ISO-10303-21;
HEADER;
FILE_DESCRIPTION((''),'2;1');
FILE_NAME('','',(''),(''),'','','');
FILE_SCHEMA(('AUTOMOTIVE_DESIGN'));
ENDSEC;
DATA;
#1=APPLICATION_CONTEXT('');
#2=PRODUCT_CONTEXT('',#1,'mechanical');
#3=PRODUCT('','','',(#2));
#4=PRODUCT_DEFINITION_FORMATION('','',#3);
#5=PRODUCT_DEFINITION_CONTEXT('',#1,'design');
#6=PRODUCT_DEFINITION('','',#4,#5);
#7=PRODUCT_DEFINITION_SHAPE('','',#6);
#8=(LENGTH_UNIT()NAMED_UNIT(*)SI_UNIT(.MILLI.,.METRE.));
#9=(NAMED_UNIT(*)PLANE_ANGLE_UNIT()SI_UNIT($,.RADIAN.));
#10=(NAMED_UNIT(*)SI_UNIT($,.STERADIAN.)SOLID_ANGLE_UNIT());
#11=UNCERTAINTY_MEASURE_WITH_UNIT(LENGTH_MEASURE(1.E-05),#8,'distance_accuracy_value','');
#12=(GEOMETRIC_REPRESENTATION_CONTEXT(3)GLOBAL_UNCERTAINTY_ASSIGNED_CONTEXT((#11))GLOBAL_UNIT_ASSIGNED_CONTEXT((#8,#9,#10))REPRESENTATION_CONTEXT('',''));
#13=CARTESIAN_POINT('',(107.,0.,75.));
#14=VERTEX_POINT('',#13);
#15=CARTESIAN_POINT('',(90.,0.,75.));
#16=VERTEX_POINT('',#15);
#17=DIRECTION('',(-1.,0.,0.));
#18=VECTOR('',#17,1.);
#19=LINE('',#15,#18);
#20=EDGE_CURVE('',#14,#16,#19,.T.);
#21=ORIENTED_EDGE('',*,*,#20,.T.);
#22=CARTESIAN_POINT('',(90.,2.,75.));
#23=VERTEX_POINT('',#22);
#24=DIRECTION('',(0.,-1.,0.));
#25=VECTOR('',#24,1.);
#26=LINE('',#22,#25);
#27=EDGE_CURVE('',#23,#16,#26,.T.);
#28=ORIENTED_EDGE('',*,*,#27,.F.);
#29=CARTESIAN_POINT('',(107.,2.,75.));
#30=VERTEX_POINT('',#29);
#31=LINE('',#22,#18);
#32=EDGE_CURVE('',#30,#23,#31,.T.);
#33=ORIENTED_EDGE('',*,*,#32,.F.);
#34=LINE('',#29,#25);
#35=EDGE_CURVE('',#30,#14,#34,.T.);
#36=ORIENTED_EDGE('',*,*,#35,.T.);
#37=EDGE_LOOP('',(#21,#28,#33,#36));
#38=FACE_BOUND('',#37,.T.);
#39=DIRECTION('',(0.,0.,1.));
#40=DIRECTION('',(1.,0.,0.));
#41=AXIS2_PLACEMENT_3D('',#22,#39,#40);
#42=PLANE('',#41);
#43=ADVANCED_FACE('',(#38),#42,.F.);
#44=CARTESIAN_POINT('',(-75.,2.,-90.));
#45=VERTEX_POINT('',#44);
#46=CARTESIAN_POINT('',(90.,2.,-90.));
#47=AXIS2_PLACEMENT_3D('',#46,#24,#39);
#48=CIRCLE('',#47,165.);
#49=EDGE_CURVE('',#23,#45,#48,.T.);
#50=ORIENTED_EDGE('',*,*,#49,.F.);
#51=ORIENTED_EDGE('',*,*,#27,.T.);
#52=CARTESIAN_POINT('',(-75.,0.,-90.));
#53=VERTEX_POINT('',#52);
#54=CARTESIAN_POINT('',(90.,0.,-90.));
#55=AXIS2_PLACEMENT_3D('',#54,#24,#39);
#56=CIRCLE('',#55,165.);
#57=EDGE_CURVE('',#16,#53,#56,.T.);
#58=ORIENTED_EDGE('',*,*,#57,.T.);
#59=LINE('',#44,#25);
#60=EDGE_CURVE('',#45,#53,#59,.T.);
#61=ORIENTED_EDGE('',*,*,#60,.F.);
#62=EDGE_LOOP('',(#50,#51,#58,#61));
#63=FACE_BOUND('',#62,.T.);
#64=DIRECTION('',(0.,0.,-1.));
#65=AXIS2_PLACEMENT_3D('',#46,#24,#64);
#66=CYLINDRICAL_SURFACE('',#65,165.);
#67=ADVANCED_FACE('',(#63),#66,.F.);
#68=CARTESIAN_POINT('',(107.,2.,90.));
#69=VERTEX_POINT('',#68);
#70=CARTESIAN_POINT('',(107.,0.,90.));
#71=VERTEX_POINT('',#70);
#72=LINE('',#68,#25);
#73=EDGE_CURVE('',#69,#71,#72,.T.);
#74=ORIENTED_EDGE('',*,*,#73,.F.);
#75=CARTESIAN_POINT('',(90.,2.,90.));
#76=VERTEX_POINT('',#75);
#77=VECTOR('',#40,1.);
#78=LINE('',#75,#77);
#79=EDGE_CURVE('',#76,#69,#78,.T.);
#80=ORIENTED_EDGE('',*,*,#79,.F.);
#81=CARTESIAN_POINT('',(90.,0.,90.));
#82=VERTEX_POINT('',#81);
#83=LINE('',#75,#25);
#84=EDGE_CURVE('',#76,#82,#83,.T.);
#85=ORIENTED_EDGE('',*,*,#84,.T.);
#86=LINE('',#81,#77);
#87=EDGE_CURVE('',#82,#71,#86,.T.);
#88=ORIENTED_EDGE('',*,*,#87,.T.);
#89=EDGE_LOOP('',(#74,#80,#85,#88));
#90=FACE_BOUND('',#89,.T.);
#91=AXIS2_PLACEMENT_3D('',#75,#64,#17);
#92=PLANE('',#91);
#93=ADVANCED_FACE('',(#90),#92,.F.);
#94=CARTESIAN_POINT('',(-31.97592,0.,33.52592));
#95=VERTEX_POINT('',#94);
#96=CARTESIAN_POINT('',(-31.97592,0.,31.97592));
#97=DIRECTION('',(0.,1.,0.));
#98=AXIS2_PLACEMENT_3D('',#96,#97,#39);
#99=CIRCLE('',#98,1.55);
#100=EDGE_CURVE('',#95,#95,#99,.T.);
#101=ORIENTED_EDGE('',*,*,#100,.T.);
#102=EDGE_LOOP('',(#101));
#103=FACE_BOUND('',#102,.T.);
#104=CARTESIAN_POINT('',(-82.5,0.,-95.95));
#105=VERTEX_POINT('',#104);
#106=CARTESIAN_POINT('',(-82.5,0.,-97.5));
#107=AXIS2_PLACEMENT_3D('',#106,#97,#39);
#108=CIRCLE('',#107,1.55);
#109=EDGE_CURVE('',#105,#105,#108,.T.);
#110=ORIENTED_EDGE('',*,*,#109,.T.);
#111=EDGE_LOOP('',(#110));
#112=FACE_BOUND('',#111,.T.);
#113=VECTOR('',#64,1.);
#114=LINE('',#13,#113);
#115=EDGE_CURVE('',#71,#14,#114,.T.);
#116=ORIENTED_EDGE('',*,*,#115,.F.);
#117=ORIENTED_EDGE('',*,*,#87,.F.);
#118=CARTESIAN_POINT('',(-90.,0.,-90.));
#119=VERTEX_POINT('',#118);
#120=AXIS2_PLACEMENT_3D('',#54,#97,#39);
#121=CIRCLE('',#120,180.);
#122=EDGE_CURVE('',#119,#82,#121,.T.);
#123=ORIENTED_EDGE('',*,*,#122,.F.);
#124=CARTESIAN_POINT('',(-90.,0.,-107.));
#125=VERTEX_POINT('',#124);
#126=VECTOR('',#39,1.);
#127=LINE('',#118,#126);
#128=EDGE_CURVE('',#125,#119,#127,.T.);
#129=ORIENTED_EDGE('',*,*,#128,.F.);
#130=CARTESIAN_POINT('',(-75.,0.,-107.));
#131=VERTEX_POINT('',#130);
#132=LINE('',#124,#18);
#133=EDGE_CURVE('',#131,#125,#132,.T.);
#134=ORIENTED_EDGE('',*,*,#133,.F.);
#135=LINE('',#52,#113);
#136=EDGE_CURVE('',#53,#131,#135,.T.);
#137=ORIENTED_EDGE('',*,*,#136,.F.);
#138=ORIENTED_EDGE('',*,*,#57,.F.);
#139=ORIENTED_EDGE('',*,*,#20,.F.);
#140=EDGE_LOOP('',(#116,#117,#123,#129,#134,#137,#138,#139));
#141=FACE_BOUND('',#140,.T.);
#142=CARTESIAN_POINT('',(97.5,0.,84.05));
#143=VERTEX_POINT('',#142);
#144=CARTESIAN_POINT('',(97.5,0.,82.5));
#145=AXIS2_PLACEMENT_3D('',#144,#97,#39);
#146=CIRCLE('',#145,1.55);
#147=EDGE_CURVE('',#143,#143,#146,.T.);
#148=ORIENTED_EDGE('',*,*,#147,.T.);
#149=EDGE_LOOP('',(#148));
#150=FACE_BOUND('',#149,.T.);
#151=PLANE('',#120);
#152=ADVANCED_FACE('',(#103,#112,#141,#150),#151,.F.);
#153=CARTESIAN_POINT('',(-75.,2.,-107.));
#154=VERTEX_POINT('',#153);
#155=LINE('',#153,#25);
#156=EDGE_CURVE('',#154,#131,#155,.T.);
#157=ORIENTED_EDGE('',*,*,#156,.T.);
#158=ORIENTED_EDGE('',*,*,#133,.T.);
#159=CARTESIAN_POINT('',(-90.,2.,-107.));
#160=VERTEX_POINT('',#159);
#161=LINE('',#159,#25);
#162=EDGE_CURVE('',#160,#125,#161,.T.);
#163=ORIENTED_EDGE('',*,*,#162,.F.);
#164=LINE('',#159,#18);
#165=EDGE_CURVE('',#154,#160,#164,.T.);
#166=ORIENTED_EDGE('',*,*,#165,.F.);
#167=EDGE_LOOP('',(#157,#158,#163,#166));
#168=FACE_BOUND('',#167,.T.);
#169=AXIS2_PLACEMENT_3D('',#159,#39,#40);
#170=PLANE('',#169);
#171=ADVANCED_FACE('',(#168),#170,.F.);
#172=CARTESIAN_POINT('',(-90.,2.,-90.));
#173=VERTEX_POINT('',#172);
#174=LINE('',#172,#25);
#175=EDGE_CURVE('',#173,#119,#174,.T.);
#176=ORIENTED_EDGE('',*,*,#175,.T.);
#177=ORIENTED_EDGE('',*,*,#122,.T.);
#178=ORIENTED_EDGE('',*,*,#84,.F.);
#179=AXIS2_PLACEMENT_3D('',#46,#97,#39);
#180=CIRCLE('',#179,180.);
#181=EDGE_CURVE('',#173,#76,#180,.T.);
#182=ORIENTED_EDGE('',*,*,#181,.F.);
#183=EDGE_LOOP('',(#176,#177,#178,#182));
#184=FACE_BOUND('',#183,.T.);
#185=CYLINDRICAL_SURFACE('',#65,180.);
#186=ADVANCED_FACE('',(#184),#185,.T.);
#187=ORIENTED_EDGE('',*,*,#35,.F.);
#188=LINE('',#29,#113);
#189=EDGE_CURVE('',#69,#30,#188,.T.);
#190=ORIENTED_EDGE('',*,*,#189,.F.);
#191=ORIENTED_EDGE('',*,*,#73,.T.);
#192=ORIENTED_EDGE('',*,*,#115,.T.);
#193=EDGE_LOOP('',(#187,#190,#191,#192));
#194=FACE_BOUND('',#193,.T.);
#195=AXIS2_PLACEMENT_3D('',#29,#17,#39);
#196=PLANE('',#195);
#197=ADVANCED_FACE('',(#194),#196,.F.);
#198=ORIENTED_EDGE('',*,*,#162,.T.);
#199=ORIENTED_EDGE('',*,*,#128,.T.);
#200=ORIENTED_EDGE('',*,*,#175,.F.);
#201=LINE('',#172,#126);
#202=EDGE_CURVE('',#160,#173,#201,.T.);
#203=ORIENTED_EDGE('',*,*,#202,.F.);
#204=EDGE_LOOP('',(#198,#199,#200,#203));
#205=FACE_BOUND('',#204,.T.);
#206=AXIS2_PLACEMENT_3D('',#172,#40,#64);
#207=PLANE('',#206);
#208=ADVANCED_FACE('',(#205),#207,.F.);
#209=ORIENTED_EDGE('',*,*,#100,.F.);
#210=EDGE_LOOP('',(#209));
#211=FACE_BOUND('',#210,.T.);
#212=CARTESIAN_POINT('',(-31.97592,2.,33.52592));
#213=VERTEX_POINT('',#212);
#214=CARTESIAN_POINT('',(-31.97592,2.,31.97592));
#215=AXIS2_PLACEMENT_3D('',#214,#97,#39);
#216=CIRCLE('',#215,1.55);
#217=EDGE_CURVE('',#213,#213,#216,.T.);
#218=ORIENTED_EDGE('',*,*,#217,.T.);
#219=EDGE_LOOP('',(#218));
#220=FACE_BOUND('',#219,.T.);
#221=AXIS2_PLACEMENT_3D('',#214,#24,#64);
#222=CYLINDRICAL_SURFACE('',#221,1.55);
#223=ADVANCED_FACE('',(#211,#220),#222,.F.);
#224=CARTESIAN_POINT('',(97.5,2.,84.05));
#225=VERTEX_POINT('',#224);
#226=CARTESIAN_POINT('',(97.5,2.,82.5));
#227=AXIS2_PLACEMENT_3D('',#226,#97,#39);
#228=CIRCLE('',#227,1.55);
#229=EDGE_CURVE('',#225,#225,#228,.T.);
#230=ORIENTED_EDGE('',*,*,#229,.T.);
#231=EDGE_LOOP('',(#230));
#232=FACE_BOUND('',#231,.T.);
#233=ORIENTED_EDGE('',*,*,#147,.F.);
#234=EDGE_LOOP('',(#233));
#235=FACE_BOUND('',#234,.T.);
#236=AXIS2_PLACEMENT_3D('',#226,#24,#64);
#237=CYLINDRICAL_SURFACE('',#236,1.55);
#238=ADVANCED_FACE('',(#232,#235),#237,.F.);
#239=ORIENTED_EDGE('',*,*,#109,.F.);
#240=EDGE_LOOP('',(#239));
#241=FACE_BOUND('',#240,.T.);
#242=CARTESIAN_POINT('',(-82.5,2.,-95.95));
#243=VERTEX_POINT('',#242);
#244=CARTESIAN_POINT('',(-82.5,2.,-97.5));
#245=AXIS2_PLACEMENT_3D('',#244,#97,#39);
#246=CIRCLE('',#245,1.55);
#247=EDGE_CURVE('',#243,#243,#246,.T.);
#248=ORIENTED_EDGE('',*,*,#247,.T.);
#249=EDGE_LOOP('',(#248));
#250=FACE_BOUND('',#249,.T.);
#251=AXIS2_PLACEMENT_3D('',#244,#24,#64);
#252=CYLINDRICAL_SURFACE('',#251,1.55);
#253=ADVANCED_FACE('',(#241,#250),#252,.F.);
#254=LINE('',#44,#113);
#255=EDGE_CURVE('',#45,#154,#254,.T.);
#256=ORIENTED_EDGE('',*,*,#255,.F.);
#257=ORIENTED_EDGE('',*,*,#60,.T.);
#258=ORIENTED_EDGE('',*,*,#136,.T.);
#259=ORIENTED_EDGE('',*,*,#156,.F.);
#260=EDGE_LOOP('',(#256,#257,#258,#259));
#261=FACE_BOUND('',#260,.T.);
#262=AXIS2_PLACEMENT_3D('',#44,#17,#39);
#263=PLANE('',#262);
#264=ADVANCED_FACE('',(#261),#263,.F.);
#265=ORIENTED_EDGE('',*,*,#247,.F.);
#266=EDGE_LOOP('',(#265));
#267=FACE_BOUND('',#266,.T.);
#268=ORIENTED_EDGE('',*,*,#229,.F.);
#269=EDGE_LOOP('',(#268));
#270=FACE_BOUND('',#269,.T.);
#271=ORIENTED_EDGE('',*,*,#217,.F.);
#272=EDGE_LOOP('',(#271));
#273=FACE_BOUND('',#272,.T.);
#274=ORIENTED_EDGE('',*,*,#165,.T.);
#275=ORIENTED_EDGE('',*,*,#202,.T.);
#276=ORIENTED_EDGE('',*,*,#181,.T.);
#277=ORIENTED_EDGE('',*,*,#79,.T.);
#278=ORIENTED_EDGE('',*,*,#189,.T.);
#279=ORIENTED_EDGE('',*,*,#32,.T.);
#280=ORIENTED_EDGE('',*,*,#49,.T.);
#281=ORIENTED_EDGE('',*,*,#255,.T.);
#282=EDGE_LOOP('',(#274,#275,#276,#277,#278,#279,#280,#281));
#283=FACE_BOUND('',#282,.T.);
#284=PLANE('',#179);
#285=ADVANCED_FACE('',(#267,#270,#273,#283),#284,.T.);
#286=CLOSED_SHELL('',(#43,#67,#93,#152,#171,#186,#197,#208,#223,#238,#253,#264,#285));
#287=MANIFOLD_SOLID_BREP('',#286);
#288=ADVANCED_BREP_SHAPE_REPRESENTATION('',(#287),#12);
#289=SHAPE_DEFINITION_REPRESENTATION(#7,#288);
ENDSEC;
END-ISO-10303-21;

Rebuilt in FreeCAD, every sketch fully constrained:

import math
import FreeCAD as App
import Part
import Sketcher

doc = App.newDocument("Part")
body = doc.addObject("PartDesign::Body", "Body")

sketch1 = doc.addObject("Sketcher::SketchObject", "Sketch")
body.addObject(sketch1)
sketch1.AttachmentSupport = (doc.XZ_Plane, [""])
sketch1.MapMode = "FlatFace"
sketch1.addGeometry(Part.LineSegment(App.Vector(-90, -107, 0), App.Vector(-90, -90, 0)), False)
sketch1.addGeometry(Part.ArcOfCircle(Part.Circle(App.Vector(90, -90, 0), App.Vector(0, 0, 1), 180), math.radians(90), math.radians(180)), False)
sketch1.addGeometry(Part.LineSegment(App.Vector(90, 90, 0), App.Vector(107, 90, 0)), False)
sketch1.addGeometry(Part.LineSegment(App.Vector(107, 90, 0), App.Vector(107, 75, 0)), False)
sketch1.addGeometry(Part.LineSegment(App.Vector(107, 75, 0), App.Vector(90, 75, 0)), False)
sketch1.addGeometry(Part.ArcOfCircle(Part.Circle(App.Vector(90, -90, 0), App.Vector(0, 0, 1), 165), math.radians(90), math.radians(180)), False)
sketch1.addGeometry(Part.LineSegment(App.Vector(-75, -90, 0), App.Vector(-75, -107, 0)), False)
sketch1.addGeometry(Part.LineSegment(App.Vector(-75, -107, 0), App.Vector(-90, -107, 0)), False)
sketch1.addGeometry(Part.Circle(App.Vector(97.5, 82.5, 0), App.Vector(0, 0, 1), 1.6), False)
sketch1.addGeometry(Part.Circle(App.Vector(-32, 32, 0), App.Vector(0, 0, 1), 1.6), False)
sketch1.addGeometry(Part.Circle(App.Vector(-82.5, -97.5, 0), App.Vector(0, 0, 1), 1.6), False)
sketch1.addConstraint(Sketcher.Constraint("Tangent", 0, 2, 1, 2))
sketch1.addConstraint(Sketcher.Constraint("Tangent", 1, 1, 2, 1))
sketch1.addConstraint(Sketcher.Constraint("Coincident", 2, 2, 3, 1))
sketch1.addConstraint(Sketcher.Constraint("Coincident", 3, 2, 4, 1))
sketch1.addConstraint(Sketcher.Constraint("Tangent", 4, 2, 5, 1))
sketch1.addConstraint(Sketcher.Constraint("Tangent", 5, 2, 6, 1))
sketch1.addConstraint(Sketcher.Constraint("Coincident", 6, 2, 7, 1))
sketch1.addConstraint(Sketcher.Constraint("Coincident", 7, 2, 0, 1))
sketch1.addConstraint(Sketcher.Constraint("Vertical", 0))
sketch1.addConstraint(Sketcher.Constraint("Horizontal", 2))
sketch1.addConstraint(Sketcher.Constraint("Vertical", 3))
sketch1.addConstraint(Sketcher.Constraint("Horizontal", 4))
sketch1.addConstraint(Sketcher.Constraint("Vertical", 6))
sketch1.addConstraint(Sketcher.Constraint("Horizontal", 7))
sketch1.addConstraint(Sketcher.Constraint("Coincident", 5, 3, 1, 3))
sketch1.addConstraint(Sketcher.Constraint("Equal", 8, 9))
sketch1.addConstraint(Sketcher.Constraint("Equal", 9, 10))
sketch1.addConstraint(Sketcher.Constraint("Symmetric", 0, 2, 1, 1, -1, 1))
sketch1.addConstraint(Sketcher.Constraint("Equal", 4, 0))
sketch1.addConstraint(Sketcher.Constraint("Radius", 1, 180.0))
sketch1.addConstraint(Sketcher.Constraint("Radius", 5, 165.0))
sketch1.addConstraint(Sketcher.Constraint("Diameter", 8, 3.1))
sketch1.addConstraint(Sketcher.Constraint("DistanceX", 2, 1, 2, 2, 17.0))
sketch1.addConstraint(Sketcher.Constraint("DistanceX", 10, 3, 8, 3, 180.0))
sketch1.addConstraint(Sketcher.Constraint("DistanceY", 10, 3, 8, 3, 180.0))
sketch1.addConstraint(Sketcher.Constraint("DistanceX", -1, 1, 8, 3, 97.5))
sketch1.addConstraint(Sketcher.Constraint("DistanceY", -1, 1, 8, 3, 82.5))
sketch1.addConstraint(Sketcher.Constraint("DistanceX", 9, 3, -1, 1, 31.97592))
sketch1.addConstraint(Sketcher.Constraint("DistanceY", -1, 1, 9, 3, 31.97592))
pad1 = doc.addObject("PartDesign::Pad", "Pad")
body.addObject(pad1)
pad1.Profile = sketch1
pad1.Length = 2
pad1.Reversed = True

doc.recompute()
